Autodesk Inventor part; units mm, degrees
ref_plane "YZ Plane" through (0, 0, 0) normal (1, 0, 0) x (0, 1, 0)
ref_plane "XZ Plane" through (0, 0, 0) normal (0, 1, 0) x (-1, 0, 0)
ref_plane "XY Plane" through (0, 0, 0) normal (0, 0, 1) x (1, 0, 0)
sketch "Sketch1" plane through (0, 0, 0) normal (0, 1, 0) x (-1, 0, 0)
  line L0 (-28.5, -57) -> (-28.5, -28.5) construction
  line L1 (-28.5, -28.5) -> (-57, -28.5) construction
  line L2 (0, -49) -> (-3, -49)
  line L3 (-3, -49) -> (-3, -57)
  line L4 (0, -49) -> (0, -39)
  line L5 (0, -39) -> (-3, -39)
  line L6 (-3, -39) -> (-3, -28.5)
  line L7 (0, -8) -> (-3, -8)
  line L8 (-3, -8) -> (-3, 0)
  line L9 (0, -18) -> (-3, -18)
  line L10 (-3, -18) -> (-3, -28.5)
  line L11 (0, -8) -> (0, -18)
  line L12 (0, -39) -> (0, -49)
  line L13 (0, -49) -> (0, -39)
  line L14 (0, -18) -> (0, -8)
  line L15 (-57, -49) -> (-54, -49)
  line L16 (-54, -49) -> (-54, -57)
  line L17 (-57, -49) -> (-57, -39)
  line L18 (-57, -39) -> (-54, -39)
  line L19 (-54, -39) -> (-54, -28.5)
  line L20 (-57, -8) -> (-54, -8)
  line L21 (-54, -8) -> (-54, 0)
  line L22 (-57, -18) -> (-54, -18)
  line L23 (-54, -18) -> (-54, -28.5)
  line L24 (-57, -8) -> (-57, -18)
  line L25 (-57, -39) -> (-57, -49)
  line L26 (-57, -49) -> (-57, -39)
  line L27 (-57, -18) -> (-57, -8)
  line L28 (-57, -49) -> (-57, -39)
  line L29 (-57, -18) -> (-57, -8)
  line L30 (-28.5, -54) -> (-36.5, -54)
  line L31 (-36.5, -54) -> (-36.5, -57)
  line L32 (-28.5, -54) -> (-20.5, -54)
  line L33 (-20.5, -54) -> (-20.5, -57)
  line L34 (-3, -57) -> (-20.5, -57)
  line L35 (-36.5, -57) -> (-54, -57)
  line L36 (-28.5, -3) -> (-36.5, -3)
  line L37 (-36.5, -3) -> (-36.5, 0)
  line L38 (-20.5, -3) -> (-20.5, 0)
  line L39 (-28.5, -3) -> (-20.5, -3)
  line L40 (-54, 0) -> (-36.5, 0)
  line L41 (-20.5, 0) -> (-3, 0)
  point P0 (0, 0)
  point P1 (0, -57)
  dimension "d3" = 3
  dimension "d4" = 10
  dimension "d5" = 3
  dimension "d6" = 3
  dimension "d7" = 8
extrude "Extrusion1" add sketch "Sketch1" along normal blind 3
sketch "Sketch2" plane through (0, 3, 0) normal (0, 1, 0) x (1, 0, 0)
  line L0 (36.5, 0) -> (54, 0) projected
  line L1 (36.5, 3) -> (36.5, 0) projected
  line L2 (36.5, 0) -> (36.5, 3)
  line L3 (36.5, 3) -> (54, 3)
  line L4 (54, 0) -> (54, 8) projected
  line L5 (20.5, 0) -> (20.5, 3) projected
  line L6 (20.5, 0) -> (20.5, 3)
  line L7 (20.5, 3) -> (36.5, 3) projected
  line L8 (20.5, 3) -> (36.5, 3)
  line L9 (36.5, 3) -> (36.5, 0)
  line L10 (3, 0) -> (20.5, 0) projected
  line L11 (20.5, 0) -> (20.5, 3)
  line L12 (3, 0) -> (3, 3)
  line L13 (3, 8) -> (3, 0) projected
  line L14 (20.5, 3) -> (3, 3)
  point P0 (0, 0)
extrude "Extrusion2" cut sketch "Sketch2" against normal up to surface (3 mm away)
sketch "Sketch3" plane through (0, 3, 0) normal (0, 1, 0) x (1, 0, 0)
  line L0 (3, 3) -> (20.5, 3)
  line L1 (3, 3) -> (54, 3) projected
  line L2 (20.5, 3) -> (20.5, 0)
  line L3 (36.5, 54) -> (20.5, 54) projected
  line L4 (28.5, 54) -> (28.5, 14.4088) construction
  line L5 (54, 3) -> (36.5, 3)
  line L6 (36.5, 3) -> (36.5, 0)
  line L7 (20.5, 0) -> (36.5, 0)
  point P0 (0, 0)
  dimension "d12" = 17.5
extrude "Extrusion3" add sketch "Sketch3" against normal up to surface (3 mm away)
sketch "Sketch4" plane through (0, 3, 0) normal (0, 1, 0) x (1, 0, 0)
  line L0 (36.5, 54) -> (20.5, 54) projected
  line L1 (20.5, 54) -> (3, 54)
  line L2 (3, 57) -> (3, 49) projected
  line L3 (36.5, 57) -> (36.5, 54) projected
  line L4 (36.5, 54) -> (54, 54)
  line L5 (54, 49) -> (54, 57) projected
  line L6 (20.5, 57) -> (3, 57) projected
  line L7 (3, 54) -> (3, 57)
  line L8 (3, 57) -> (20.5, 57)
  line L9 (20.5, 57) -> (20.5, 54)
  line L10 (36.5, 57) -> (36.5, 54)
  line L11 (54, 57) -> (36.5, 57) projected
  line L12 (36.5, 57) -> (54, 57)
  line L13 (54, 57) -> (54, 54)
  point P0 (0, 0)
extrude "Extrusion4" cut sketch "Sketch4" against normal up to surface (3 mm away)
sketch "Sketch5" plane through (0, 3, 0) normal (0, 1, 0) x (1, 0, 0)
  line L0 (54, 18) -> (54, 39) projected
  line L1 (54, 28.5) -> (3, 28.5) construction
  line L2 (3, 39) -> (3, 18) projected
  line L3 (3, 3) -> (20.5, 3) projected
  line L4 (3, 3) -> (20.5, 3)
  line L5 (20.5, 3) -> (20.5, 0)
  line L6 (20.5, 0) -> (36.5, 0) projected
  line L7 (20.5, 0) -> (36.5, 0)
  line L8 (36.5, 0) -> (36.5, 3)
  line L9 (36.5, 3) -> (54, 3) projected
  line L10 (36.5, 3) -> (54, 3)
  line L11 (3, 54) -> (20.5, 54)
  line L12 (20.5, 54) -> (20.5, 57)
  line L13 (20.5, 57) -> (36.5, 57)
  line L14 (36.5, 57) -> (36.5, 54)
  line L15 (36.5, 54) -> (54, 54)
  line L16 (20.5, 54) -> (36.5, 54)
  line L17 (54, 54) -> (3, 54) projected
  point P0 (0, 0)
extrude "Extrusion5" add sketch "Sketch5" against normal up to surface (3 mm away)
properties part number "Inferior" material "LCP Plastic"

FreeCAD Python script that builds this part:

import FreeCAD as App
import Part
import Sketcher

V = App.Vector


def add_polygon(sketch, points):
    """Adds a closed chain of lines whose ends are joined by coincident constraints."""
    first, n = sketch.GeometryCount, len(points)
    for a, b in zip(points, points[1:] + points[:1]):
        sketch.addGeometry(Part.LineSegment(App.Vector(*a, 0), App.Vector(*b, 0)), False)
    for i in range(n):
        sketch.addConstraint(Sketcher.Constraint("Coincident", first + i, 2, first + (i + 1) % n, 1))

doc = App.newDocument("Part")
body = doc.addObject("PartDesign::Body", "Body")

# Sketch on XZ plane
sketch1 = body.newObject("Sketcher::SketchObject", "Sketch")
sketch1.AttachmentSupport = (doc.getObject("XZ_Plane"), [""])
sketch1.MapMode = "FlatFace"
add_polygon(sketch1, [(3, -49), (0, -49), (0, -39), (3, -39), (3, -18), (0, -18), (0, -8), (3, -8), (3, 0), (20.5, 0), (20.5, -3), (36.5, -3), (36.5, 0), (54, 0), (54, -8), (57, -8), (57, -18), (54, -18), (54, -39), (57, -39), (57, -49), (54, -49), (54, -57), (36.5, -57), (36.5, -54), (20.5, -54), (20.5, -57), (3, -57)])  # lines 0-27
sketch1.addConstraint([
    Sketcher.Constraint("Horizontal", 0),
    Sketcher.Constraint("Vertical", 1),
    Sketcher.Constraint("Horizontal", 2),
    Sketcher.Constraint("Vertical", 3),
    Sketcher.Constraint("Horizontal", 4),
    Sketcher.Constraint("Vertical", 5),
    Sketcher.Constraint("Horizontal", 6),
    Sketcher.Constraint("Vertical", 7),
    Sketcher.Constraint("Horizontal", 8),
    Sketcher.Constraint("Vertical", 9),
    Sketcher.Constraint("Horizontal", 10),
    Sketcher.Constraint("Vertical", 11),
    Sketcher.Constraint("Horizontal", 12),
    Sketcher.Constraint("Vertical", 13),
    Sketcher.Constraint("Horizontal", 14),
    Sketcher.Constraint("Vertical", 15),
    Sketcher.Constraint("Horizontal", 16),
    Sketcher.Constraint("Vertical", 17),
    Sketcher.Constraint("Horizontal", 18),
    Sketcher.Constraint("Vertical", 19),
    Sketcher.Constraint("Horizontal", 20),
    Sketcher.Constraint("Vertical", 21),
    Sketcher.Constraint("Horizontal", 22),
    Sketcher.Constraint("Vertical", 23),
    Sketcher.Constraint("Horizontal", 24),
    Sketcher.Constraint("Vertical", 25),
    Sketcher.Constraint("Horizontal", 26),
    Sketcher.Constraint("Vertical", 27),
    Sketcher.Constraint("PointOnObject", 0, 2, -2),
    Sketcher.Constraint("PointOnObject", 4, 2, -2),
    Sketcher.Constraint("PointOnObject", 7, 2, -1),
    Sketcher.Constraint("PointOnObject", 11, 2, -1),
    Sketcher.Constraint("Horizontal", 6, 2, 13, 2),
    Sketcher.Constraint("Horizontal", 4, 2, 15, 2),
    Sketcher.Constraint("Horizontal", 2, 2, 17, 2),
    Sketcher.Constraint("Horizontal", 0, 2, 19, 2),
    Sketcher.Constraint("Horizontal", 22, 2, 25, 2),
    Sketcher.Constraint("Vertical", 3, 2, 6, 2),
    Sketcher.Constraint("Vertical", 13, 2, 16, 2),
    Sketcher.Constraint("Vertical", 15, 2, 18, 2),
    Sketcher.Constraint("Vertical", 17, 2, 20, 2),
    Sketcher.Constraint("Vertical", 11, 2, 22, 2),
    Sketcher.Constraint("Vertical", 9, 2, 24, 2),
    Sketcher.Constraint("Vertical", 7, 2, 26, 2),
    Sketcher.Constraint("Equal", 8, 12),
    Sketcher.Constraint("Equal", 6, 14),
    Sketcher.Constraint("Equal", 1, 5),
    Sketcher.Constraint("Equal", 20, 9),
    Sketcher.Constraint("Equal", 13, 21),
    Sketcher.Constraint("Equal", 11, 23),
    Sketcher.Constraint("DistanceX", 0, 2, 0, 1, 3.0),
    Sketcher.Constraint("DistanceY", 1, 1, 1, 2, 10.0),
    Sketcher.Constraint("DistanceY", 7, 1, 7, 2, 8.0),
    Sketcher.Constraint("DistanceX", 10, 1, 10, 2, 16.0),
    Sketcher.Constraint("DistanceY", 3, 1, 3, 2, 21.0),
    Sketcher.Constraint("DistanceX", 8, 1, 8, 2, 17.5),
])
pad1 = body.newObject("PartDesign::Pad", "Pad")
pad1.Profile = sketch1
pad1.Length = 3
pad1.Reversed = True

# Sketch on XZ plane
sketch2 = body.newObject("Sketcher::SketchObject", "Sketch001")
sketch2.AttachmentSupport = (doc.getObject("XZ_Plane"), [""])
sketch2.MapMode = "FlatFace"
sketch2.AttachmentOffset = App.Placement(V(0, 0, -3), App.Rotation())
add_polygon(sketch2, [(36.5, -3), (36.5, 0), (54, 0), (54, -3)])  # lines 0-3
add_polygon(sketch2, [(20.5, 0), (20.5, -3), (3, -3), (3, 0)])  # lines 4-7
sketch2.addConstraint([
    Sketcher.Constraint("Vertical", 0),
    Sketcher.Constraint("Horizontal", 1),
    Sketcher.Constraint("Vertical", 2),
    Sketcher.Constraint("Horizontal", 3),
    Sketcher.Constraint("Vertical", 4),
    Sketcher.Constraint("Horizontal", 5),
    Sketcher.Constraint("Vertical", 6),
    Sketcher.Constraint("Horizontal", 7),
    Sketcher.Constraint("PointOnObject", 0, 2, -1),
    Sketcher.Constraint("PointOnObject", 6, 2, -1),
    Sketcher.Constraint("Horizontal", 3, 2, 4, 2),
    Sketcher.Constraint("Equal", 3, 5),
    Sketcher.Constraint("DistanceY", 0, 1, 0, 2, 3.0),
    Sketcher.Constraint("DistanceX", 1, 1, 1, 2, 17.5),
    Sketcher.Constraint("DistanceX", -1, 1, 1, 2, 54.0),
    Sketcher.Constraint("DistanceX", -1, 1, 5, 2, 3.0),
])
pocket1 = body.newObject("PartDesign::Pocket", "Pocket")
pocket1.Profile = sketch2
pocket1.Length = 3
pocket1.Reversed = True

# Sketch on XZ plane
sketch3 = body.newObject("Sketcher::SketchObject", "Sketch002")
sketch3.AttachmentSupport = (doc.getObject("XZ_Plane"), [""])
sketch3.MapMode = "FlatFace"
sketch3.AttachmentOffset = App.Placement(V(0, 0, -3), App.Rotation())
add_polygon(sketch3, [(36.5, -3), (20.5, -3), (20.5, 0), (36.5, 0)])  # lines 0-3
sketch3.addConstraint([
    Sketcher.Constraint("Horizontal", 0),
    Sketcher.Constraint("Vertical", 1),
    Sketcher.Constraint("Horizontal", 2),
    Sketcher.Constraint("Vertical", 3),
    Sketcher.Constraint("PointOnObject", 1, 2, -1),
    Sketcher.Constraint("DistanceX", 0, 2, 0, 1, 16.0),
    Sketcher.Constraint("DistanceY", 1, 1, 1, 2, 3.0),
    Sketcher.Constraint("DistanceX", -1, 1, 0, 2, 20.5),
])
pad2 = body.newObject("PartDesign::Pad", "Pad001")
pad2.Profile = sketch3
pad2.Length = 3

# Sketch on XZ plane
sketch4 = body.newObject("Sketcher::SketchObject", "Sketch003")
sketch4.AttachmentSupport = (doc.getObject("XZ_Plane"), [""])
sketch4.MapMode = "FlatFace"
sketch4.AttachmentOffset = App.Placement(V(0, 0, -3), App.Rotation())
add_polygon(sketch4, [(3, -54), (20.5, -54), (20.5, -57), (3, -57)])  # lines 0-3
add_polygon(sketch4, [(36.5, -57), (36.5, -54), (54, -54), (54, -57)])  # lines 4-7
sketch4.addConstraint([
    Sketcher.Constraint("Horizontal", 0),
    Sketcher.Constraint("Vertical", 1),
    Sketcher.Constraint("Horizontal", 2),
    Sketcher.Constraint("Vertical", 3),
    Sketcher.Constraint("Vertical", 4),
    Sketcher.Constraint("Horizontal", 5),
    Sketcher.Constraint("Vertical", 6),
    Sketcher.Constraint("Horizontal", 7),
    Sketcher.Constraint("Horizontal", 3, 2, 4, 2),
    Sketcher.Constraint("Horizontal", 2, 2, 6, 2),
    Sketcher.Constraint("Equal", 2, 5),
    Sketcher.Constraint("DistanceY", 1, 2, 1, 1, 3.0),
    Sketcher.Constraint("DistanceX", 0, 1, 0, 2, 17.5),
    Sketcher.Constraint("DistanceY", 0, 2, -1, 1, 54.0),
    Sketcher.Constraint("DistanceX", -1, 1, 2, 2, 3.0),
    Sketcher.Constraint("DistanceX", -1, 1, 5, 2, 54.0),
])
pocket2 = body.newObject("PartDesign::Pocket", "Pocket001")
pocket2.Profile = sketch4
pocket2.Length = 3
pocket2.Reversed = True

# Sketch on XZ plane
sketch5 = body.newObject("Sketcher::SketchObject", "Sketch004")
sketch5.AttachmentSupport = (doc.getObject("XZ_Plane"), [""])
sketch5.MapMode = "FlatFace"
sketch5.AttachmentOffset = App.Placement(V(0, 0, -3), App.Rotation())
add_polygon(sketch5, [(20.5, -57), (20.5, -54), (36.5, -54), (36.5, -57)])  # lines 0-3
sketch5.addConstraint([
    Sketcher.Constraint("Vertical", 0),
    Sketcher.Constraint("Horizontal", 1),
    Sketcher.Constraint("Vertical", 2),
    Sketcher.Constraint("Horizontal", 3),
    Sketcher.Constraint("DistanceX", 1, 1, 1, 2, 16.0),
    Sketcher.Constraint("DistanceY", 0, 1, 0, 2, 3.0),
    Sketcher.Constraint("DistanceY", 0, 2, -1, 1, 54.0),
    Sketcher.Constraint("DistanceX", -1, 1, 0, 2, 20.5),
])
pad3 = body.newObject("PartDesign::Pad", "Pad002")
pad3.Profile = sketch5
pad3.Length = 3

doc.recompute()
